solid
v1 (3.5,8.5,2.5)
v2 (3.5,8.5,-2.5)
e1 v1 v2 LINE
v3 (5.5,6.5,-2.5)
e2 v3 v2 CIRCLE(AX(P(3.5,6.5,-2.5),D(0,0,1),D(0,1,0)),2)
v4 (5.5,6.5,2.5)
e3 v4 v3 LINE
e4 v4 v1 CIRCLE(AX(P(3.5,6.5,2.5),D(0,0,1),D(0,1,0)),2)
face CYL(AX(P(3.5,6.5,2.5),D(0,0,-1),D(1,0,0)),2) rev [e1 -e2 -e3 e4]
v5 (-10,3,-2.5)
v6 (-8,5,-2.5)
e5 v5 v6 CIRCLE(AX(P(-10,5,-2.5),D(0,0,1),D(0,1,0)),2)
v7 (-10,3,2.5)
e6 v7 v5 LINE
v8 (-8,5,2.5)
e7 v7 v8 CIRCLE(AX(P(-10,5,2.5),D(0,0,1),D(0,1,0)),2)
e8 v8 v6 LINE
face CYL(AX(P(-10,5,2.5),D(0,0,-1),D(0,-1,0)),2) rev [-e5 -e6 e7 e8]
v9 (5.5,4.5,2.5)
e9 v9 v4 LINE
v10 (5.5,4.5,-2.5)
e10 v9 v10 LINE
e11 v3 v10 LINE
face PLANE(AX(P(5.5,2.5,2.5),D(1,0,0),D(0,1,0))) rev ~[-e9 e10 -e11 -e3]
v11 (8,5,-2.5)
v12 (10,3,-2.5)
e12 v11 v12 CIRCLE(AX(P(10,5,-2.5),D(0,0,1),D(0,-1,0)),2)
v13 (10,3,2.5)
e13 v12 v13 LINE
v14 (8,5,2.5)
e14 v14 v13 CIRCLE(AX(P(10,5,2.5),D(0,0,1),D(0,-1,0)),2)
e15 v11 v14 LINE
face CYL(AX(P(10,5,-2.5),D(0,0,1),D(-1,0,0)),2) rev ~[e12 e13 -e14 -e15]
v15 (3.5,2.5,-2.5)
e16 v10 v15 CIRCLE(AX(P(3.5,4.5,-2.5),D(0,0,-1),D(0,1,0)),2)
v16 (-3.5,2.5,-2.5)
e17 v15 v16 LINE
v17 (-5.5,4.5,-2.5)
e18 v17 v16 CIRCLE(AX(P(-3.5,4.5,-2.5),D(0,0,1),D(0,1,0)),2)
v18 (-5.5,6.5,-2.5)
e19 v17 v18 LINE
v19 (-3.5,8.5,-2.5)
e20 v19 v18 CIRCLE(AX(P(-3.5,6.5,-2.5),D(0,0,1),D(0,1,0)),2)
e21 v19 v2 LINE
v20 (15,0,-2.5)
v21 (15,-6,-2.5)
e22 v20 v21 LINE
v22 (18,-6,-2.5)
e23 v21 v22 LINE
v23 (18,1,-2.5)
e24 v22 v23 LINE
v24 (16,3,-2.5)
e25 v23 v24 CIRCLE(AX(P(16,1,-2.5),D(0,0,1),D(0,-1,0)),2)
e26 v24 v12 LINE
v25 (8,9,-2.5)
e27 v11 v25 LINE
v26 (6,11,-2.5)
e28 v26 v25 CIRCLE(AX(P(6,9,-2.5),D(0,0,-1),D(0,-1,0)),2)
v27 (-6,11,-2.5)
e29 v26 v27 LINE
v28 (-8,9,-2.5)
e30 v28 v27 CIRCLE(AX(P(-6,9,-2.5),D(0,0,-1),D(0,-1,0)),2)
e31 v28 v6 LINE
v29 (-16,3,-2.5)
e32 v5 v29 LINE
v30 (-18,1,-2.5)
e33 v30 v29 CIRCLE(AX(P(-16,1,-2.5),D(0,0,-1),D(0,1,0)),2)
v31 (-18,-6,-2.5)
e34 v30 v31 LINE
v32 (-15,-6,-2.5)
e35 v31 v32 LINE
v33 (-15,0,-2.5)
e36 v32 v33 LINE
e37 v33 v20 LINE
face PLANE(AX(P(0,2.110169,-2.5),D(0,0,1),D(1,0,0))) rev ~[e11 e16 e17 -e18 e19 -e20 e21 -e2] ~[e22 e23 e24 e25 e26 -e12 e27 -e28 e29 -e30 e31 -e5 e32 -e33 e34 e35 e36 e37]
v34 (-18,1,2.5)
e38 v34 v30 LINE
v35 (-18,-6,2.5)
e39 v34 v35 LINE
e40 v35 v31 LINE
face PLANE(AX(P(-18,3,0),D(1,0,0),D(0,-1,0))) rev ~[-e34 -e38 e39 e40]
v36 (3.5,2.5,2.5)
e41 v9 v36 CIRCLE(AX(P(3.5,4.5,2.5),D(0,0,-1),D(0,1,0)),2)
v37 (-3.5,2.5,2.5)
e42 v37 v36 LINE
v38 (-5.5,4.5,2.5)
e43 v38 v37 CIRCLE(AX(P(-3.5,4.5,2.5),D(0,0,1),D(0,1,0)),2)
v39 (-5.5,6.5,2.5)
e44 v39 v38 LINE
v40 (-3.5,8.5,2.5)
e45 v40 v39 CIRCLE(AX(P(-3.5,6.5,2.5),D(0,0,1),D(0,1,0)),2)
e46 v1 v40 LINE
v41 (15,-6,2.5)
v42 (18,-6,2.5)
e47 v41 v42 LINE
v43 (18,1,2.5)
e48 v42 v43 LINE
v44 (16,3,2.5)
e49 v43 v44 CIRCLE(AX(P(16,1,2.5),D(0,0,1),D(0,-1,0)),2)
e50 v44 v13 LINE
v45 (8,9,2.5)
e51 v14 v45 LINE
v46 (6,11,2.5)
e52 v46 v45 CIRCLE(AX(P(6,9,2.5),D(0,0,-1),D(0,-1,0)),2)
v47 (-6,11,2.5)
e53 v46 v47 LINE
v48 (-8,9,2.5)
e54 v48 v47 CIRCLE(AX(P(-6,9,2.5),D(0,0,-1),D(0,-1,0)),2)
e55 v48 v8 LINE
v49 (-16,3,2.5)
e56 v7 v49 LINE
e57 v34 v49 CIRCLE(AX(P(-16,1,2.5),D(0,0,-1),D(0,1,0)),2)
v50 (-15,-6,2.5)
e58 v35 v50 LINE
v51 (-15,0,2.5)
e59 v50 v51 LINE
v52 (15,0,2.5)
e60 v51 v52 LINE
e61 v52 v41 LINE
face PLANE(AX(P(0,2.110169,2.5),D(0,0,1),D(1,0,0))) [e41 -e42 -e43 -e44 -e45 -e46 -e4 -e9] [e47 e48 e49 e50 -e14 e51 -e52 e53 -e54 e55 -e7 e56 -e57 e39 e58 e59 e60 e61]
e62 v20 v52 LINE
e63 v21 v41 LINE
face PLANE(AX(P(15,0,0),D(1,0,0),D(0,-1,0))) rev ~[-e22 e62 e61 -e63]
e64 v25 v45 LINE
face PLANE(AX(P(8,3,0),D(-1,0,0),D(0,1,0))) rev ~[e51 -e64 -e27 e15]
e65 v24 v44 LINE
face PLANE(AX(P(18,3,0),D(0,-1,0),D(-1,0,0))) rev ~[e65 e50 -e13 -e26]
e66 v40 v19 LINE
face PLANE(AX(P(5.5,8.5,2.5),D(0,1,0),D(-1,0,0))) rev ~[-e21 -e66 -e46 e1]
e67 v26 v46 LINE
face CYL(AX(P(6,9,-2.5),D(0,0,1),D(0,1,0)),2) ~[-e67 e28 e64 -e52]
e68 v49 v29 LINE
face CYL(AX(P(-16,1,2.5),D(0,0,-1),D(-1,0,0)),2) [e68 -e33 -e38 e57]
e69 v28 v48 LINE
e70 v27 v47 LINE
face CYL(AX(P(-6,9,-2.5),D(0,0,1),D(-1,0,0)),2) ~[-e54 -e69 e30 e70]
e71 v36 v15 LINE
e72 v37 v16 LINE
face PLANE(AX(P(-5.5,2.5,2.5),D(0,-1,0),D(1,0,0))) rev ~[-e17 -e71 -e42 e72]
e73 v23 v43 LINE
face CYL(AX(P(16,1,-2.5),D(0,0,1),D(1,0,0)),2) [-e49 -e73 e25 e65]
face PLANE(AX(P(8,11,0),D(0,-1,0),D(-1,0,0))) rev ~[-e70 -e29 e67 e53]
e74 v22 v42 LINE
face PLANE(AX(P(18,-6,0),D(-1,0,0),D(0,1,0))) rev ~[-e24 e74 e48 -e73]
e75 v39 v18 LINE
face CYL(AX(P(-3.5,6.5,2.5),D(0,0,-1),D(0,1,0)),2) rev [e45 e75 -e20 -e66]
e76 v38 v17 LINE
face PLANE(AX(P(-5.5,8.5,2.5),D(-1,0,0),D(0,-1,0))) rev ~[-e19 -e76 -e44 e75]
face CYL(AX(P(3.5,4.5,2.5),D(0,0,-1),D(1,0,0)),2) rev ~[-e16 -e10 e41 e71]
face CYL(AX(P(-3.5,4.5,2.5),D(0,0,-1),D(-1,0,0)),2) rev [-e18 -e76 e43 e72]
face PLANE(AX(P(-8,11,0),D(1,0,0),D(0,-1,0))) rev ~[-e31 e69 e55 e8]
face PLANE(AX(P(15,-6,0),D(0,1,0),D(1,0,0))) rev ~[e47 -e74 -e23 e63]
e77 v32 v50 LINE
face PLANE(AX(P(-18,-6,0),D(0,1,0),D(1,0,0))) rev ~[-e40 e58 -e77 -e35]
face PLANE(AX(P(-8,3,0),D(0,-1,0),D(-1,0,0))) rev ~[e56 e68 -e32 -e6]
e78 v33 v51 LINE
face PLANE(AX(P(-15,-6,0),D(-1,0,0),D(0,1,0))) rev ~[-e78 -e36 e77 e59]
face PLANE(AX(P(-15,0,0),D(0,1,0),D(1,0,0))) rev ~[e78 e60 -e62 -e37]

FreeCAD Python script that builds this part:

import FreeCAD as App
import Part
import Sketcher

V = App.Vector


def edges_at(feature, points):
    """Names of the edges that pass closest to the given points."""
    edges = feature.Shape.Edges
    near = lambda p: min(range(len(edges)), key=lambda i: edges[i].distToShape(Part.Vertex(*p))[0])
    return sorted({f"Edge{near(p) + 1}" for p in points})


def add_polygon(sketch, points):
    """Adds a closed chain of lines whose ends are joined by coincident constraints."""
    first, n = sketch.GeometryCount, len(points)
    for a, b in zip(points, points[1:] + points[:1]):
        sketch.addGeometry(Part.LineSegment(App.Vector(*a, 0), App.Vector(*b, 0)), False)
    for i in range(n):
        sketch.addConstraint(Sketcher.Constraint("Coincident", first + i, 2, first + (i + 1) % n, 1))

doc = App.newDocument("Part")
params = doc.addObject("Spreadsheet::Sheet", "Params")
for row, (alias, value) in enumerate([
    ("sketch1_height", "8 mm"),
    ("sketch1_height2", "9 mm"),
    ("sketch1_height3", "6 mm"),
    ("pad1_length", "5 mm"),
    ("sketch2_width", "11 mm"),
    ("sketch2_height", "6 mm"),
    ("fillet_radius", "2 mm"),
], start=1):
    params.set(f"A{row}", alias)
    params.set(f"B{row}", "=" + value)
    params.setAlias(f"B{row}", alias)

body = doc.addObject("PartDesign::Body", "Body")

# Sketch on XY plane
sketch1 = doc.addObject("Sketcher::SketchObject", "Sketch")
body.addObject(sketch1)
sketch1.AttachmentSupport = (doc.XY_Plane, [""])
sketch1.MapMode = "FlatFace"
add_polygon(sketch1, [(-18, 3), (-18, -6), (-15, -6), (-15, 0), (15, 0), (15, -6), (18, -6), (18, 3), (8, 3), (8, 11), (-8, 11), (-8, 3)])  # lines 0-11
sketch1.addConstraint([
    Sketcher.Constraint("Vertical", 0),
    Sketcher.Constraint("Horizontal", 1),
    Sketcher.Constraint("Vertical", 2),
    Sketcher.Constraint("Horizontal", 3),
    Sketcher.Constraint("Vertical", 4),
    Sketcher.Constraint("Horizontal", 5),
    Sketcher.Constraint("Vertical", 6),
    Sketcher.Constraint("Horizontal", 7),
    Sketcher.Constraint("Vertical", 8),
    Sketcher.Constraint("Horizontal", 9),
    Sketcher.Constraint("Vertical", 10),
    Sketcher.Constraint("Horizontal", 11),
    Sketcher.Constraint("Symmetric", 2, 2, 3, 2, -1, 1),
    Sketcher.Constraint("Symmetric", 0, 2, 5, 2, -2),
    Sketcher.Constraint("Symmetric", 7, 2, 10, 2, -2),
    Sketcher.Constraint("DistanceY", 8, 1, 8, 2, 8.0),
    Sketcher.Constraint("DistanceX", 0, 2, -1, 1, 18.0),
    Sketcher.Constraint("DistanceX", 1, 2, -1, 1, 15.0),
    Sketcher.Constraint("DistanceX", -1, 1, 7, 2, 8.0),
    Sketcher.Constraint("DistanceY", 0, 2, 0, 1, 9.0),
    Sketcher.Constraint("DistanceY", 2, 1, 2, 2, 6.0),
])
sketch1.setExpression("Constraints[27]", "Params.sketch1_height")
sketch1.setExpression("Constraints[31]", "Params.sketch1_height2")
sketch1.setExpression("Constraints[32]", "Params.sketch1_height3")
pad1 = doc.addObject("PartDesign::Pad", "Pad")
body.addObject(pad1)
pad1.Profile = sketch1
pad1.setExpression("Length", "Params.pad1_length")
pad1.Midplane = True

# Sketch on XY plane
sketch2 = doc.addObject("Sketcher::SketchObject", "Sketch001")
body.addObject(sketch2)
sketch2.AttachmentSupport = (doc.XY_Plane, [""])
sketch2.MapMode = "FlatFace"
sketch2.AttachmentOffset = App.Placement(V(0, 0, 2.5), App.Rotation())
add_polygon(sketch2, [(-5.5, 2.5), (5.5, 2.5), (5.5, 8.5), (-5.5, 8.5)])  # lines 0-3
sketch2.addConstraint([
    Sketcher.Constraint("Horizontal", 0),
    Sketcher.Constraint("Vertical", 1),
    Sketcher.Constraint("Horizontal", 2),
    Sketcher.Constraint("Vertical", 3),
    Sketcher.Constraint("DistanceX", 0, 1, 0, 2, 11.0),
    Sketcher.Constraint("DistanceY", 1, 1, 1, 2, 6.0),
    Sketcher.Constraint("DistanceX", -1, 1, 0, 2, 5.5),
    Sketcher.Constraint("DistanceY", -1, 1, 0, 2, 2.5),
])
sketch2.setExpression("Constraints[8]", "Params.sketch2_width")
sketch2.setExpression("Constraints[9]", "Params.sketch2_height")
pocket1 = doc.addObject("PartDesign::Pocket", "Pocket")
body.addObject(pocket1)
pocket1.Profile = sketch2
pocket1.Type = "UpToFirst"
doc.recompute()

fillet = doc.addObject("PartDesign::Fillet", "Fillet")
body.addObject(fillet)
fillet.Base = (pocket1, edges_at(pocket1, [
    (8, 3, 0),
    (8, 11, 0),
    (5.5, 2.5, 0),
    (5.5, 8.5, 0),
    (-5.5, 8.5, 0),
    (-5.5, 2.5, 0),
    (-8, 3, 0),
    (-8, 11, 0),
    (-18, 3, 0),
    (18, 3, 0),
]))
fillet.setExpression("Radius", "Params.fillet_radius")

doc.recompute()
